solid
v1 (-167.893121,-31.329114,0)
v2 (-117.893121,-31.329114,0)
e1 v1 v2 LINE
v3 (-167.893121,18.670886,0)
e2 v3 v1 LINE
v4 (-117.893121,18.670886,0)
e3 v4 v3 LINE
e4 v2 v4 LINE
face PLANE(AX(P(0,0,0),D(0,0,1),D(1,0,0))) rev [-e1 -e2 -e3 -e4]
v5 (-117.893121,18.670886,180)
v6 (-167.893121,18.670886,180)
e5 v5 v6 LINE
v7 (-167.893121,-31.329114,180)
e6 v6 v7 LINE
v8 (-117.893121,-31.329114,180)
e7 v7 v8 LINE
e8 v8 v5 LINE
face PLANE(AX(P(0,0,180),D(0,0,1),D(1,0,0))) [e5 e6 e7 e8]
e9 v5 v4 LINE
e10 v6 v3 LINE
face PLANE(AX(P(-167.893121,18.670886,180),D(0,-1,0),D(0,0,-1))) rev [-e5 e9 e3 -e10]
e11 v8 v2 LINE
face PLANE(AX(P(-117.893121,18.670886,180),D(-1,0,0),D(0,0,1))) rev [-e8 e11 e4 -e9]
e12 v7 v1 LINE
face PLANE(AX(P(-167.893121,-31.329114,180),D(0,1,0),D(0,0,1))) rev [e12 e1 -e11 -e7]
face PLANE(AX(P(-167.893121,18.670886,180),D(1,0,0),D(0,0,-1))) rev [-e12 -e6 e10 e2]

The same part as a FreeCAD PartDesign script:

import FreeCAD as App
import Part
import Sketcher

V = App.Vector
Q = App.Units.Quantity

doc = App.newDocument("Part")
body = doc.addObject("PartDesign::Body", "Body")

# Sketch on XY plane
sketch1 = body.newObject("Sketcher::SketchObject", "Sketch")
sketch1.AttachmentSupport = (doc.getObject("XY_Plane"), [""])
sketch1.MapMode = "FlatFace"
sketch1.addGeometry([
    Part.LineSegment(V(-167.893121, 18.670886, 0), V(-167.893121, -31.329114, 0)),
    Part.LineSegment(V(-167.893121, -31.329114, 0), V(-117.893121, -31.329114, 0)),
    Part.LineSegment(V(-117.893121, -31.329114, 0), V(-117.893121, 18.670886, 0)),
    Part.LineSegment(V(-117.893121, 18.670886, 0), V(-167.893121, 18.670886, 0)),
], False)
sketch1.addConstraint([
    Sketcher.Constraint("Coincident", 0, 2, 1, 1),
    Sketcher.Constraint("Coincident", 1, 2, 2, 1),
    Sketcher.Constraint("Coincident", 2, 2, 3, 1),
    Sketcher.Constraint("Coincident", 3, 2, 0, 1),
    Sketcher.Constraint("Vertical", 0),
    Sketcher.Constraint("Horizontal", 1),
    Sketcher.Constraint("Vertical", 2),
    Sketcher.Constraint("Horizontal", 3),
    Sketcher.Constraint("Equal", 3, 0),
    Sketcher.Constraint("DistanceX", 1, 1, 1, 2, Q("50 mm")),
    Sketcher.Constraint("DistanceX", 0, 2, -1, 1, Q("167.893121 mm")),
    Sketcher.Constraint("DistanceY", 0, 2, -1, 1, Q("31.329114 mm")),
])
pad1 = body.newObject("PartDesign::Pad", "Pad")
pad1.Profile = sketch1
pad1.Length = 180

doc.recompute()
